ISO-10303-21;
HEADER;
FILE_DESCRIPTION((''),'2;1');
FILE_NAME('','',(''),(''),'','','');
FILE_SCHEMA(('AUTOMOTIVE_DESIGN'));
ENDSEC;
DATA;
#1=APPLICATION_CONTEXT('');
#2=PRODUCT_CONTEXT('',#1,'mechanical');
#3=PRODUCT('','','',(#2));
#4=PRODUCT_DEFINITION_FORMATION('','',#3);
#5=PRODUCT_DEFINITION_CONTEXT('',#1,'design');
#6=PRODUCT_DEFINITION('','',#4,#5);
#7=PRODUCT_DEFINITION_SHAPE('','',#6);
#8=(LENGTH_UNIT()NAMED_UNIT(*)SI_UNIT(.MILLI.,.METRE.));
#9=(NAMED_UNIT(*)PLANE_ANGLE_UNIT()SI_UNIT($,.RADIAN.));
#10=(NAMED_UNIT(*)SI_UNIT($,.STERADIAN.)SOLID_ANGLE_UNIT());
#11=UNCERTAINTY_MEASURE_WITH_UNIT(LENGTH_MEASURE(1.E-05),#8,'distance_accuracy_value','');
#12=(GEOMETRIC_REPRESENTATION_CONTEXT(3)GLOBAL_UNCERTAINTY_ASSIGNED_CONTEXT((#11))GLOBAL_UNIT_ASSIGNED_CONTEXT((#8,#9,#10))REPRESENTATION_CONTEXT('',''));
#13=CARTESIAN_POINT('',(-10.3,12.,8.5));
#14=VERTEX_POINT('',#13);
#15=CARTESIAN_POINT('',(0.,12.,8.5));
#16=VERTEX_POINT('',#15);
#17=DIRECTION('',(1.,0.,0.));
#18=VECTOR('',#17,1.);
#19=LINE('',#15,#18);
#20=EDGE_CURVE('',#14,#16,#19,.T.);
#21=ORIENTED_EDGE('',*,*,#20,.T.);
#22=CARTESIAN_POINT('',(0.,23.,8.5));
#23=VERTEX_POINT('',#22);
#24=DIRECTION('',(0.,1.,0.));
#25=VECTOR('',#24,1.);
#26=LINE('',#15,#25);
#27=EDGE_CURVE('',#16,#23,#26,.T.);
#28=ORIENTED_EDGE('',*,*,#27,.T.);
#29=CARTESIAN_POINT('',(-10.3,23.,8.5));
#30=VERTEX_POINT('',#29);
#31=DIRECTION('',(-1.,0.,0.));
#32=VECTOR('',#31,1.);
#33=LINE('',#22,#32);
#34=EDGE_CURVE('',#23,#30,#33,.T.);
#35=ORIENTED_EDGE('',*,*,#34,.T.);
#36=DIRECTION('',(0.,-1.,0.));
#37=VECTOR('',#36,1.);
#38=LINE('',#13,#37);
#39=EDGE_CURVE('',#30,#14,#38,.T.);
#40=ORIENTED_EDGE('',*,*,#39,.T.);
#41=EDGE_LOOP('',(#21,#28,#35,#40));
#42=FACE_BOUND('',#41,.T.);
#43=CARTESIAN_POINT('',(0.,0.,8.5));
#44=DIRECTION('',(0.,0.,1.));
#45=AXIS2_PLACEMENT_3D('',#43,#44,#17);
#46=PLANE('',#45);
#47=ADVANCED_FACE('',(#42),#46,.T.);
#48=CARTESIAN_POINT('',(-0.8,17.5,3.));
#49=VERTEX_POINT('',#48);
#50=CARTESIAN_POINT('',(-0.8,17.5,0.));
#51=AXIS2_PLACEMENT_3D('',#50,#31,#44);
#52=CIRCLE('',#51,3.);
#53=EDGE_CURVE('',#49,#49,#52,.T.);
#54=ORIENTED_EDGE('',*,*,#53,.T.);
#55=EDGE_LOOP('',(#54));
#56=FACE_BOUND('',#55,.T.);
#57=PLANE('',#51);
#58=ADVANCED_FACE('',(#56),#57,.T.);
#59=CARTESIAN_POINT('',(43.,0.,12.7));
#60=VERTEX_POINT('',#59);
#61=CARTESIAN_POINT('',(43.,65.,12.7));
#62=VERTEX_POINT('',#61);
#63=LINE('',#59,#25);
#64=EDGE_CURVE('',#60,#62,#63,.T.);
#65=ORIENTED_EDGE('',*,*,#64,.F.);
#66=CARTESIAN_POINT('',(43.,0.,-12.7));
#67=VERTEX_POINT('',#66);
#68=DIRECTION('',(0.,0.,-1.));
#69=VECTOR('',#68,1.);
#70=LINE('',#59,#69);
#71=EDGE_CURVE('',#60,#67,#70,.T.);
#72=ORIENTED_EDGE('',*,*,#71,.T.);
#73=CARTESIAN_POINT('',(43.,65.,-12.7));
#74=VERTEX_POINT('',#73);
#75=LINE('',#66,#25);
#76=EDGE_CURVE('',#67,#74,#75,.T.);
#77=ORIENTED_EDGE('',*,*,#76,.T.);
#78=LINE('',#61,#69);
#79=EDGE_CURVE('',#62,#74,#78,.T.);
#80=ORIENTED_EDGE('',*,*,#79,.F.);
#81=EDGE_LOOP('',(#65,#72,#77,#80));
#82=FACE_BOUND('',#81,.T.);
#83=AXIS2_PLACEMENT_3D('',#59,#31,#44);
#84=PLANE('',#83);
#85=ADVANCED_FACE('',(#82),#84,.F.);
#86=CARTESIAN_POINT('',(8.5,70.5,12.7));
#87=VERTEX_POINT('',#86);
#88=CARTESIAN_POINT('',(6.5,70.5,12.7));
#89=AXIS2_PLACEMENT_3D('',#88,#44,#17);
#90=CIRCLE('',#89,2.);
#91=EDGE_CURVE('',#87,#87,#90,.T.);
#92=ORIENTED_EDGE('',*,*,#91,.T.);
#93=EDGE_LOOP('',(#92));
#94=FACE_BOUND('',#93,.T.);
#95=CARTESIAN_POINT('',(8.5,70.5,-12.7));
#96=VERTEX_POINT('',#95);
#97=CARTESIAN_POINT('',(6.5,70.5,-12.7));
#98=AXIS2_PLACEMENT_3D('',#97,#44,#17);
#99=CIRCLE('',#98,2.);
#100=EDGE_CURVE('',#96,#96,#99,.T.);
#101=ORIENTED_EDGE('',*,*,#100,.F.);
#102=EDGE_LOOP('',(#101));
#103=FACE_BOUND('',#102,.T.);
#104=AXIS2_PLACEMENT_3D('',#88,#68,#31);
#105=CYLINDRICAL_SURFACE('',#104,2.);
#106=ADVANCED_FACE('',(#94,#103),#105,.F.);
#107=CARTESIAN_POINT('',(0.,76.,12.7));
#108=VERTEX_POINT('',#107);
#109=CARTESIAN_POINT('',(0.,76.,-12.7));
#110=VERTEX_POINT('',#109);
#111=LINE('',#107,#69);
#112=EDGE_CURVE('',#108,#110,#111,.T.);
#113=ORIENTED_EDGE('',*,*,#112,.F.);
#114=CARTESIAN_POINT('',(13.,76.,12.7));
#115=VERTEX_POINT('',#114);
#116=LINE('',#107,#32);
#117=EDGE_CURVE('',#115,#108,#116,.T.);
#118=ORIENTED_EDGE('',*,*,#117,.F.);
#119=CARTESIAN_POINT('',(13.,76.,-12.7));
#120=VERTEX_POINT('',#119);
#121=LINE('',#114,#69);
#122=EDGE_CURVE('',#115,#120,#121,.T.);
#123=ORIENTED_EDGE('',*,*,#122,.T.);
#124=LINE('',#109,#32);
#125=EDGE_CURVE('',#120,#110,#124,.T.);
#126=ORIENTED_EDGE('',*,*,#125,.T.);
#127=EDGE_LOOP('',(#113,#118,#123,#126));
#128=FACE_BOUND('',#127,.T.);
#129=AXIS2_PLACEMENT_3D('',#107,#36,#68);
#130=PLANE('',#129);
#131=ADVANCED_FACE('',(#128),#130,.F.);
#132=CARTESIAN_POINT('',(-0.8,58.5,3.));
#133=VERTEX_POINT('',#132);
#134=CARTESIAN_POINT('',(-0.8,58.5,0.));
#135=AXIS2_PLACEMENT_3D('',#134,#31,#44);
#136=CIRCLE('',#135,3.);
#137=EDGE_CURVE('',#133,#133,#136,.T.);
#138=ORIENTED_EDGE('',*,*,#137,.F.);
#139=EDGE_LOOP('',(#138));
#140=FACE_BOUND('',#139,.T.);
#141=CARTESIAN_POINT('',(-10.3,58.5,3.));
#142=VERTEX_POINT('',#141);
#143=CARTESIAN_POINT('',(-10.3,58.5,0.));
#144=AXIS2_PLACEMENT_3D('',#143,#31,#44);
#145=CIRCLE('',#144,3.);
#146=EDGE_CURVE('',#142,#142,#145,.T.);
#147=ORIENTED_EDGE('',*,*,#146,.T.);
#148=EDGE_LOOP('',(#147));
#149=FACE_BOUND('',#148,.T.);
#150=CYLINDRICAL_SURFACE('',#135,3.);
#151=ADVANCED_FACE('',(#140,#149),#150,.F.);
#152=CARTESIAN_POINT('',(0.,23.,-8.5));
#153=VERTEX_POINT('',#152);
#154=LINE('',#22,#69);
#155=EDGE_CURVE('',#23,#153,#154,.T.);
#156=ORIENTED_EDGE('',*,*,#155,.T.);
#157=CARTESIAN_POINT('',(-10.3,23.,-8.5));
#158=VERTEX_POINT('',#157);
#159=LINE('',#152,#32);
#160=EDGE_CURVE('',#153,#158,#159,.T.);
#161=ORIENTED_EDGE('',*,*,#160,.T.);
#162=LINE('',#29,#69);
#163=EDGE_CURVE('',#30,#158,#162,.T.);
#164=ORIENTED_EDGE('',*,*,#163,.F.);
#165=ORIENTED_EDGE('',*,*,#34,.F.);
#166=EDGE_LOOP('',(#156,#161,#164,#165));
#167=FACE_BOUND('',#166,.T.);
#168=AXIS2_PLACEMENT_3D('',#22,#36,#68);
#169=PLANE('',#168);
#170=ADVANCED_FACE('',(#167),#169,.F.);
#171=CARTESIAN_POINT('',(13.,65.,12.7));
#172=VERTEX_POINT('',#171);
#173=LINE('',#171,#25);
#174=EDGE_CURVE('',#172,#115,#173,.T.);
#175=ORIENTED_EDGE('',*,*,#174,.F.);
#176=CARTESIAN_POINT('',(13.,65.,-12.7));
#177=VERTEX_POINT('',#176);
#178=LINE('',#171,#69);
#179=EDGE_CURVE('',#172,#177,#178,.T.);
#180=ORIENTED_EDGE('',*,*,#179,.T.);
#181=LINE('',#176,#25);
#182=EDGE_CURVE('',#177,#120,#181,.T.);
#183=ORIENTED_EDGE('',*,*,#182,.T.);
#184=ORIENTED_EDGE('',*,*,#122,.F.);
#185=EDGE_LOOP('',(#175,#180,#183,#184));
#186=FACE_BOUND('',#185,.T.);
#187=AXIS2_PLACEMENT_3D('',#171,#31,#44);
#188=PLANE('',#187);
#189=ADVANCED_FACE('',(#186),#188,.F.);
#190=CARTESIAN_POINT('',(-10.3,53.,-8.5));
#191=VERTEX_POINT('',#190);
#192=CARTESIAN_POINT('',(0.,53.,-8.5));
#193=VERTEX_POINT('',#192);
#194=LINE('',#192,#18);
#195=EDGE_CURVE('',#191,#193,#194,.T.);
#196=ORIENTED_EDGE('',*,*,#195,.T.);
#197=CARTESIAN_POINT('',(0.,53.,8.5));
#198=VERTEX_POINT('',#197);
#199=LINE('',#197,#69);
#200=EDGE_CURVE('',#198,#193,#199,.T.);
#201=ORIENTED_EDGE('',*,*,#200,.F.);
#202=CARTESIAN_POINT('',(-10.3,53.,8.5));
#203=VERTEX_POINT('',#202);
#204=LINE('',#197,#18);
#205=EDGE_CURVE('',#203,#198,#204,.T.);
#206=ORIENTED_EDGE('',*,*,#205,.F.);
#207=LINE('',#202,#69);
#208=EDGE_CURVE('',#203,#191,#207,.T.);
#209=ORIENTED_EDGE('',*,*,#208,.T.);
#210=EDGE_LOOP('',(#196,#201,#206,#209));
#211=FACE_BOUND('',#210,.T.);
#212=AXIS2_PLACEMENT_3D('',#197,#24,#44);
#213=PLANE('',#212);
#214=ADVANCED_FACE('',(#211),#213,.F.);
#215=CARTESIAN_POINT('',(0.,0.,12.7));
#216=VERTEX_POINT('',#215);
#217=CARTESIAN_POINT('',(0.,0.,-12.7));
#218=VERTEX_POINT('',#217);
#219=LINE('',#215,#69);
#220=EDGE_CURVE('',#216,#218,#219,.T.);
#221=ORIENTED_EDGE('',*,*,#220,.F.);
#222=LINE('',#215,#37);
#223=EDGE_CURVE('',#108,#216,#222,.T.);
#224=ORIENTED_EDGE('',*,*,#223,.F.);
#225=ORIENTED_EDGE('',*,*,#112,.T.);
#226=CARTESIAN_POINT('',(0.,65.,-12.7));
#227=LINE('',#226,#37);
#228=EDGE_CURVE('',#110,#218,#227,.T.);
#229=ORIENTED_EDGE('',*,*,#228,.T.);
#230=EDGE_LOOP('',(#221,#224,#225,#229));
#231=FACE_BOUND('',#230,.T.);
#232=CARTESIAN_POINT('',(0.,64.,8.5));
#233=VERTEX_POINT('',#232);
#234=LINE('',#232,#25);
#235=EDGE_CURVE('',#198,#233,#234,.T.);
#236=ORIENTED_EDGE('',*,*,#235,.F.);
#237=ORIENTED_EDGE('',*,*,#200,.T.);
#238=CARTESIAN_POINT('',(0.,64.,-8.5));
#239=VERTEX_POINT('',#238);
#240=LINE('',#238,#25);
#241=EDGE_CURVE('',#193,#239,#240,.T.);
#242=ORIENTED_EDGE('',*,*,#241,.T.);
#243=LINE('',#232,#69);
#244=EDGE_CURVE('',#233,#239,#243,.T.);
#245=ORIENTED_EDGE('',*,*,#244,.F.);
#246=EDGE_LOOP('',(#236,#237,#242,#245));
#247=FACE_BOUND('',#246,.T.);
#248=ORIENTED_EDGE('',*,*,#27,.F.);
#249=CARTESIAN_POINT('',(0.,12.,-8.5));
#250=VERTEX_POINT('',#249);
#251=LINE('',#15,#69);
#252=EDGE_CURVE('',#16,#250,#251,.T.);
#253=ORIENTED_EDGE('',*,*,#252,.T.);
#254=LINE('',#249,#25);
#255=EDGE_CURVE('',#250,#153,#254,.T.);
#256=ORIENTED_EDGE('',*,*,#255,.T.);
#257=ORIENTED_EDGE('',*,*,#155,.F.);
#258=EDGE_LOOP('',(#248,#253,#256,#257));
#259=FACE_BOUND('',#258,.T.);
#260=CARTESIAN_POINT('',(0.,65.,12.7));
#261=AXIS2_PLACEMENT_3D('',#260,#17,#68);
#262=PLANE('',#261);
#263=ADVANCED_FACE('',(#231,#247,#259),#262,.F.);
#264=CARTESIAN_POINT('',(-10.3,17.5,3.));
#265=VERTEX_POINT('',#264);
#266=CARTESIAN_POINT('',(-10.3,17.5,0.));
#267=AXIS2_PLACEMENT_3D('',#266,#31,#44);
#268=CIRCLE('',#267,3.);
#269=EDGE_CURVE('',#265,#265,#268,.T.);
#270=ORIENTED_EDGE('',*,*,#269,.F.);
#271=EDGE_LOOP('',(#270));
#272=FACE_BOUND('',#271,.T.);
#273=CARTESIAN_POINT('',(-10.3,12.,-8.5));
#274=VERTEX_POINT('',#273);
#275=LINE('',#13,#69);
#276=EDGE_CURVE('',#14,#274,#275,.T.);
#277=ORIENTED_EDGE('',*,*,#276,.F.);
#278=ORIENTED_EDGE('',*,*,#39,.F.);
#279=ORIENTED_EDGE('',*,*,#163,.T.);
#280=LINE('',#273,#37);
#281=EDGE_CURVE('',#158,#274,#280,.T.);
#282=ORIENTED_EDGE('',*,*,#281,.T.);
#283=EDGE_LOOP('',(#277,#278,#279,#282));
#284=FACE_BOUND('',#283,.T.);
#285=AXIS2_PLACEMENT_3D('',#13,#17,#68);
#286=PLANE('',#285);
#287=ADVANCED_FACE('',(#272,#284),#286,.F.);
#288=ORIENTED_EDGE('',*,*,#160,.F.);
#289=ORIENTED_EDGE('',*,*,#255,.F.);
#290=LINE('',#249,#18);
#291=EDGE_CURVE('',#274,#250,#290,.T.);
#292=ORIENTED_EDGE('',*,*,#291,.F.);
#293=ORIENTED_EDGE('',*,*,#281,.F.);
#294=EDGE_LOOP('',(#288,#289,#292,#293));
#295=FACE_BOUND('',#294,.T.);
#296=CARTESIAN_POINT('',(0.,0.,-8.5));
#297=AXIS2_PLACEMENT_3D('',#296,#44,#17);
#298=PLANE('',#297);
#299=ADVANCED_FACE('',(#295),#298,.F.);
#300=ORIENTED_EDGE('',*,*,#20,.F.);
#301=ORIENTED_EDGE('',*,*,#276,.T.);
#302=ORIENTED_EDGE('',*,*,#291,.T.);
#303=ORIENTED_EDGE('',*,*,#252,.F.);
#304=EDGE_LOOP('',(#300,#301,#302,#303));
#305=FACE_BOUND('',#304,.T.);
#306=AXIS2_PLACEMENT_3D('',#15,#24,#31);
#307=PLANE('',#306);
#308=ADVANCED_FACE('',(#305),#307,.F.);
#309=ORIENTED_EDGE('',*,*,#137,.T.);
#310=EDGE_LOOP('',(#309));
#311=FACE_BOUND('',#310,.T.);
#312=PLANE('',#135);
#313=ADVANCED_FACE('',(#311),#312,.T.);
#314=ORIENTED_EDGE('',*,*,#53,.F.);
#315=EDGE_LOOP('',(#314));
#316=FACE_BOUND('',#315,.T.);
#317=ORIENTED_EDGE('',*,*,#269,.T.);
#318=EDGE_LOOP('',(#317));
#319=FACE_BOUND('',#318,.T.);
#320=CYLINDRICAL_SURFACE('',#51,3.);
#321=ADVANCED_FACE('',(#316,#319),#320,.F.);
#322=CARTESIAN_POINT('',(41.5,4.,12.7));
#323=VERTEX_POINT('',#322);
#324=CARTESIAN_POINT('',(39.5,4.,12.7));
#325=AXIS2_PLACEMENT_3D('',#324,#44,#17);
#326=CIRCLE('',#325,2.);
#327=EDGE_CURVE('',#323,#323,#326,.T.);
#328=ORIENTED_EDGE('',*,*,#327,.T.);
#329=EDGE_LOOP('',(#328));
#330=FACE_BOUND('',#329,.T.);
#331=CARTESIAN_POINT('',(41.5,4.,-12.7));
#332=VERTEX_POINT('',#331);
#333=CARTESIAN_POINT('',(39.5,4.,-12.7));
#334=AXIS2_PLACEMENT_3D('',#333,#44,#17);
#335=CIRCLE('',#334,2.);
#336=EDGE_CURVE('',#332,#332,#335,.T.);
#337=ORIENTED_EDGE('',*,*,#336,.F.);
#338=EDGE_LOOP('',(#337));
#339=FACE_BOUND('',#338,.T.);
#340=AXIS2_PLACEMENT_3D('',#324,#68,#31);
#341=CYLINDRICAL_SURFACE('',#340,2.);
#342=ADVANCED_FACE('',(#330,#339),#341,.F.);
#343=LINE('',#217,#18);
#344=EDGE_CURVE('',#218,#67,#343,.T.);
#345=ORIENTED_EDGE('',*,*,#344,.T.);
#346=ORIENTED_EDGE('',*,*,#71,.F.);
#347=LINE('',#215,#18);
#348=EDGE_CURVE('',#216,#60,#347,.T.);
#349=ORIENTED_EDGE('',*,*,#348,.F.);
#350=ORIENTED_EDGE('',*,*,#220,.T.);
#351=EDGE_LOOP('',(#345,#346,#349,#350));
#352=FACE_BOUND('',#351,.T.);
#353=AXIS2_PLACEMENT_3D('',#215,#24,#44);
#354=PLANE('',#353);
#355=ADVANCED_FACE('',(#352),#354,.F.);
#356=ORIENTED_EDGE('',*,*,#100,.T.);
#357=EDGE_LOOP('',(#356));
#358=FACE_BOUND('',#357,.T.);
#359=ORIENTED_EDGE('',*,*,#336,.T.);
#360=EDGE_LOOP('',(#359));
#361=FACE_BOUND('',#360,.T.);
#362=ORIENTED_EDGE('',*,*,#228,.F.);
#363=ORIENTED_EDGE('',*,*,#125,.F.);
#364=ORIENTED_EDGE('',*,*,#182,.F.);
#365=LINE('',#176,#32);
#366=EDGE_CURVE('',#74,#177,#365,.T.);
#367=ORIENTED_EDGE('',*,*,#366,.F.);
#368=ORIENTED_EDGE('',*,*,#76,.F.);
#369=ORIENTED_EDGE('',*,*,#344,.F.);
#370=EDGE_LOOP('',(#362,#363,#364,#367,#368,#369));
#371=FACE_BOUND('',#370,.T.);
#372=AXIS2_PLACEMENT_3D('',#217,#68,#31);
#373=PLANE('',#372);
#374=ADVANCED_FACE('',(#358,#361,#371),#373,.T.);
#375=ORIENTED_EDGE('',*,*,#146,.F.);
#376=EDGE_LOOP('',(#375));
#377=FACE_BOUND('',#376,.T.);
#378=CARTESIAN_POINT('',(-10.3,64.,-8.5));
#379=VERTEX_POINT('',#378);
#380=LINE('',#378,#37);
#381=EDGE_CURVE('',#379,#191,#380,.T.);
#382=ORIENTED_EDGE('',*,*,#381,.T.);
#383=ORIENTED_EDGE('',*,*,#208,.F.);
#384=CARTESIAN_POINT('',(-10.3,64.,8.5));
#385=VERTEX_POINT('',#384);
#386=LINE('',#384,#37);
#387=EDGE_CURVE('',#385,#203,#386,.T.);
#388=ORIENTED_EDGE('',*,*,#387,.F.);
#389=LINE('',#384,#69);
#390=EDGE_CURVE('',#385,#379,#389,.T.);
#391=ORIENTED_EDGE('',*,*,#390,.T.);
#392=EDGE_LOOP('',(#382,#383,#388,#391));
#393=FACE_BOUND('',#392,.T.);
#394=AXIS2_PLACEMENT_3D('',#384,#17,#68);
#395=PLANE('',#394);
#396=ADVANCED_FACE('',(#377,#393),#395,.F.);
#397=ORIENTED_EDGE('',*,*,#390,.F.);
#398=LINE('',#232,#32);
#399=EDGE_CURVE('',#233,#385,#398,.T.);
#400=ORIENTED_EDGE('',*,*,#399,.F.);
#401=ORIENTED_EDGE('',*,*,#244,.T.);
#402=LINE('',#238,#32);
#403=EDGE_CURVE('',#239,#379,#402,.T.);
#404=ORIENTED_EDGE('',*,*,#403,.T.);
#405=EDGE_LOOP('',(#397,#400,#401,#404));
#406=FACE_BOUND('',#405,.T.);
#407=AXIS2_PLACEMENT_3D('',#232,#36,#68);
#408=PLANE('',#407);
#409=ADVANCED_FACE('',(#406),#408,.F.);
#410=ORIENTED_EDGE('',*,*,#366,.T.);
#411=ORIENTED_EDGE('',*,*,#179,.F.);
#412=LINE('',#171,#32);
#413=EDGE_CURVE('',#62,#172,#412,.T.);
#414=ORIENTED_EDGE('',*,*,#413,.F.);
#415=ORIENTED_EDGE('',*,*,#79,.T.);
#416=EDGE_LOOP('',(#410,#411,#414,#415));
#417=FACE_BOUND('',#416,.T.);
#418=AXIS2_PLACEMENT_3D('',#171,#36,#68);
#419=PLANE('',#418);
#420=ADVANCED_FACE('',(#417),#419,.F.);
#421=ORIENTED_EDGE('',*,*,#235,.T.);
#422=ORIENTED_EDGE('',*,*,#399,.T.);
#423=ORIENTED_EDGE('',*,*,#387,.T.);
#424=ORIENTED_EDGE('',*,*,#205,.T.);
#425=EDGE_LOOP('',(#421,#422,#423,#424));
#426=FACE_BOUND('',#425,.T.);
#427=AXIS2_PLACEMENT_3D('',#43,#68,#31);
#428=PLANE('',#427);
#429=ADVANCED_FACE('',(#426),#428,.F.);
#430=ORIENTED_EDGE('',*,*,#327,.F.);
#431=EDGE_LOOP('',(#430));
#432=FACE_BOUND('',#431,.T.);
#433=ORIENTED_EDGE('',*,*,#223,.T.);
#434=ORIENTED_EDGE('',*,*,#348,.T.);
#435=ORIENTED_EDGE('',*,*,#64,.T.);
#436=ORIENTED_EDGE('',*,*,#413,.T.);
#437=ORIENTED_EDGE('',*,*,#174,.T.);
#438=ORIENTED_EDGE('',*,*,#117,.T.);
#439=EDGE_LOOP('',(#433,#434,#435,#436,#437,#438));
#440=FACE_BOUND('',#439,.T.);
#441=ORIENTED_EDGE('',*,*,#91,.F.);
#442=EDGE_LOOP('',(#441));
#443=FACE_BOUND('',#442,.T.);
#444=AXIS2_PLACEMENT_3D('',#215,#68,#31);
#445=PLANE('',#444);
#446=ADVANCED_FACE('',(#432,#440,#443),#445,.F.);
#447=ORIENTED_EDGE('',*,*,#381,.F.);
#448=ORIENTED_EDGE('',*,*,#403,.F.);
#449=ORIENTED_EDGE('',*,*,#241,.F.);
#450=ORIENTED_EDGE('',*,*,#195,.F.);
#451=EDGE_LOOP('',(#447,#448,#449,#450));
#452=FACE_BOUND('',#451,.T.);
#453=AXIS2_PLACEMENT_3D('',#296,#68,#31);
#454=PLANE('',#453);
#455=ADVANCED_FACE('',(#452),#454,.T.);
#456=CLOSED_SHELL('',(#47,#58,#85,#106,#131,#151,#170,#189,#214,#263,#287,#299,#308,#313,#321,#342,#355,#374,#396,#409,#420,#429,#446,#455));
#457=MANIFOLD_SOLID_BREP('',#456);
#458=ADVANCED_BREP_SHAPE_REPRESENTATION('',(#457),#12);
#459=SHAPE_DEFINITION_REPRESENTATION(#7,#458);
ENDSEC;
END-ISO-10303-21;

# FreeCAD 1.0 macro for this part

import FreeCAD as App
import Part
import Sketcher
from FreeCAD import Vector

doc = App.newDocument("Part")
body = doc.addObject("PartDesign::Body", "Body")

# Sketch on XY plane
sketch1 = body.newObject("Sketcher::SketchObject", "Sketch")
sketch1.AttachmentSupport = (doc.getObject("XY_Plane"), [""])
sketch1.MapMode = "FlatFace"
sketch1.addGeometry([
    Part.LineSegment(Vector(43, 65, 0), Vector(13, 65, 0)),  # 0
    Part.LineSegment(Vector(13, 65, 0), Vector(13, 76, 0)),  # 1
    Part.LineSegment(Vector(13, 76, 0), Vector(0, 76, 0)),  # 2
    Part.LineSegment(Vector(0, 76, 0), Vector(0, 0, 0)),  # 3
    Part.LineSegment(Vector(0, 0, 0), Vector(43, 0, 0)),  # 4
    Part.LineSegment(Vector(43, 0, 0), Vector(43, 65, 0)),  # 5
    Part.Circle(Vector(39.5, 4, 0), Vector(0, 0, 1), 2),  # 6
    Part.Circle(Vector(6.5, 70.5, 0), Vector(0, 0, 1), 2),  # 7
], False)
sketch1.addConstraint([
    Sketcher.Constraint("Coincident", 0, 2, 1, 1),
    Sketcher.Constraint("Coincident", 1, 2, 2, 1),
    Sketcher.Constraint("Coincident", 2, 2, 3, 1),
    Sketcher.Constraint("Coincident", 3, 2, 4, 1),
    Sketcher.Constraint("Coincident", 4, 2, 5, 1),
    Sketcher.Constraint("Coincident", 5, 2, 0, 1),
    Sketcher.Constraint("Horizontal", 0),
    Sketcher.Constraint("Vertical", 1),
    Sketcher.Constraint("Horizontal", 2),
    Sketcher.Constraint("Vertical", 3),
    Sketcher.Constraint("Horizontal", 4),
    Sketcher.Constraint("Vertical", 5),
    Sketcher.Constraint("Coincident", 3, 2, -1, 1),
    Sketcher.Constraint("Equal", 6, 7),
    Sketcher.Constraint("Diameter", 6, 4.0),
    Sketcher.Constraint("DistanceX", 0, 2, 0, 1, 30.0),
    Sketcher.Constraint("DistanceX", 2, 2, 2, 1, 13.0),
    Sketcher.Constraint("DistanceY", 1, 1, 1, 2, 11.0),
    Sketcher.Constraint("DistanceY", 3, 2, 3, 1, 76.0),
    Sketcher.Constraint("DistanceY", -1, 1, 6, 3, 4.0),
    Sketcher.Constraint("DistanceX", 7, 3, 6, 3, 33.0),
    Sketcher.Constraint("DistanceX", -1, 1, 6, 3, 39.5),
    Sketcher.Constraint("DistanceY", -1, 1, 7, 3, 70.5),
])
pad1 = body.newObject("PartDesign::Pad", "Pad")
pad1.Profile = sketch1
pad1.Length = 25.4
pad1.Midplane = True

# Sketch on XY plane
sketch2 = body.newObject("Sketcher::SketchObject", "Sketch001")
sketch2.AttachmentSupport = (doc.getObject("XY_Plane"), [""])
sketch2.MapMode = "FlatFace"
sketch2.addGeometry([
    Part.LineSegment(Vector(-10.3, 64, 0), Vector(-10.3, 53, 0)),  # 0
    Part.LineSegment(Vector(-10.3, 53, 0), Vector(0, 53, 0)),  # 1
    Part.LineSegment(Vector(0, 53, 0), Vector(0, 64, 0)),  # 2
    Part.LineSegment(Vector(0, 64, 0), Vector(-10.3, 64, 0)),  # 3
    Part.LineSegment(Vector(-10.3, 23, 0), Vector(-10.3, 12, 0)),  # 4
    Part.LineSegment(Vector(-10.3, 12, 0), Vector(0, 12, 0)),  # 5
    Part.LineSegment(Vector(0, 12, 0), Vector(0, 23, 0)),  # 6
    Part.LineSegment(Vector(0, 23, 0), Vector(-10.3, 23, 0)),  # 7
], False)
sketch2.addConstraint([
    Sketcher.Constraint("Coincident", 0, 2, 1, 1),
    Sketcher.Constraint("Coincident", 1, 2, 2, 1),
    Sketcher.Constraint("Coincident", 2, 2, 3, 1),
    Sketcher.Constraint("Coincident", 3, 2, 0, 1),
    Sketcher.Constraint("Coincident", 4, 2, 5, 1),
    Sketcher.Constraint("Coincident", 5, 2, 6, 1),
    Sketcher.Constraint("Coincident", 6, 2, 7, 1),
    Sketcher.Constraint("Coincident", 7, 2, 4, 1),
    Sketcher.Constraint("Vertical", 0),
    Sketcher.Constraint("Horizontal", 1),
    Sketcher.Constraint("Vertical", 2),
    Sketcher.Constraint("Horizontal", 3),
    Sketcher.Constraint("Vertical", 4),
    Sketcher.Constraint("Horizontal", 5),
    Sketcher.Constraint("Vertical", 6),
    Sketcher.Constraint("Horizontal", 7),
    Sketcher.Constraint("PointOnObject", 1, 2, -2),
    Sketcher.Constraint("PointOnObject", 5, 2, -2),
    Sketcher.Constraint("Vertical", 3, 2, 4, 2),
    Sketcher.Constraint("Equal", 2, 4),
    Sketcher.Constraint("DistanceY", 0, 2, 0, 1, 11.0),
    Sketcher.Constraint("DistanceX", 1, 1, 1, 2, 10.3),
    Sketcher.Constraint("DistanceY", -1, 1, 0, 2, 53.0),
    Sketcher.Constraint("DistanceY", -1, 1, 4, 2, 12.0),
])
pad2 = body.newObject("PartDesign::Pad", "Pad001")
pad2.Profile = sketch2
pad2.Length = 17
pad2.Midplane = True

# Sketch on YZ plane
sketch3 = body.newObject("Sketcher::SketchObject", "Sketch002")
sketch3.AttachmentSupport = (doc.getObject("YZ_Plane"), [""])
sketch3.MapMode = "FlatFace"
sketch3.AttachmentOffset = App.Placement(Vector(0, 0, -10.3), App.Rotation())
sketch3.addGeometry([
    Part.Circle(Vector(58.5, 0, 0), Vector(0, 0, 1), 3),
    Part.Circle(Vector(17.5, 0, 0), Vector(0, 0, 1), 3),
], False)
sketch3.addConstraint([
    Sketcher.Constraint("Equal", 0, 1),
    Sketcher.Constraint("PointOnObject", 0, 3, -1),
    Sketcher.Constraint("PointOnObject", 1, 3, -1),
    Sketcher.Constraint("Diameter", 0, 6.0),
    Sketcher.Constraint("DistanceX", 1, 3, 0, 3, 41.0),
    Sketcher.Constraint("DistanceX", -1, 1, 0, 3, 58.5),
])
pocket1 = body.newObject("PartDesign::Pocket", "Pocket")
pocket1.Profile = sketch3
pocket1.Length = 9.5
pocket1.Reversed = True

doc.recompute()
